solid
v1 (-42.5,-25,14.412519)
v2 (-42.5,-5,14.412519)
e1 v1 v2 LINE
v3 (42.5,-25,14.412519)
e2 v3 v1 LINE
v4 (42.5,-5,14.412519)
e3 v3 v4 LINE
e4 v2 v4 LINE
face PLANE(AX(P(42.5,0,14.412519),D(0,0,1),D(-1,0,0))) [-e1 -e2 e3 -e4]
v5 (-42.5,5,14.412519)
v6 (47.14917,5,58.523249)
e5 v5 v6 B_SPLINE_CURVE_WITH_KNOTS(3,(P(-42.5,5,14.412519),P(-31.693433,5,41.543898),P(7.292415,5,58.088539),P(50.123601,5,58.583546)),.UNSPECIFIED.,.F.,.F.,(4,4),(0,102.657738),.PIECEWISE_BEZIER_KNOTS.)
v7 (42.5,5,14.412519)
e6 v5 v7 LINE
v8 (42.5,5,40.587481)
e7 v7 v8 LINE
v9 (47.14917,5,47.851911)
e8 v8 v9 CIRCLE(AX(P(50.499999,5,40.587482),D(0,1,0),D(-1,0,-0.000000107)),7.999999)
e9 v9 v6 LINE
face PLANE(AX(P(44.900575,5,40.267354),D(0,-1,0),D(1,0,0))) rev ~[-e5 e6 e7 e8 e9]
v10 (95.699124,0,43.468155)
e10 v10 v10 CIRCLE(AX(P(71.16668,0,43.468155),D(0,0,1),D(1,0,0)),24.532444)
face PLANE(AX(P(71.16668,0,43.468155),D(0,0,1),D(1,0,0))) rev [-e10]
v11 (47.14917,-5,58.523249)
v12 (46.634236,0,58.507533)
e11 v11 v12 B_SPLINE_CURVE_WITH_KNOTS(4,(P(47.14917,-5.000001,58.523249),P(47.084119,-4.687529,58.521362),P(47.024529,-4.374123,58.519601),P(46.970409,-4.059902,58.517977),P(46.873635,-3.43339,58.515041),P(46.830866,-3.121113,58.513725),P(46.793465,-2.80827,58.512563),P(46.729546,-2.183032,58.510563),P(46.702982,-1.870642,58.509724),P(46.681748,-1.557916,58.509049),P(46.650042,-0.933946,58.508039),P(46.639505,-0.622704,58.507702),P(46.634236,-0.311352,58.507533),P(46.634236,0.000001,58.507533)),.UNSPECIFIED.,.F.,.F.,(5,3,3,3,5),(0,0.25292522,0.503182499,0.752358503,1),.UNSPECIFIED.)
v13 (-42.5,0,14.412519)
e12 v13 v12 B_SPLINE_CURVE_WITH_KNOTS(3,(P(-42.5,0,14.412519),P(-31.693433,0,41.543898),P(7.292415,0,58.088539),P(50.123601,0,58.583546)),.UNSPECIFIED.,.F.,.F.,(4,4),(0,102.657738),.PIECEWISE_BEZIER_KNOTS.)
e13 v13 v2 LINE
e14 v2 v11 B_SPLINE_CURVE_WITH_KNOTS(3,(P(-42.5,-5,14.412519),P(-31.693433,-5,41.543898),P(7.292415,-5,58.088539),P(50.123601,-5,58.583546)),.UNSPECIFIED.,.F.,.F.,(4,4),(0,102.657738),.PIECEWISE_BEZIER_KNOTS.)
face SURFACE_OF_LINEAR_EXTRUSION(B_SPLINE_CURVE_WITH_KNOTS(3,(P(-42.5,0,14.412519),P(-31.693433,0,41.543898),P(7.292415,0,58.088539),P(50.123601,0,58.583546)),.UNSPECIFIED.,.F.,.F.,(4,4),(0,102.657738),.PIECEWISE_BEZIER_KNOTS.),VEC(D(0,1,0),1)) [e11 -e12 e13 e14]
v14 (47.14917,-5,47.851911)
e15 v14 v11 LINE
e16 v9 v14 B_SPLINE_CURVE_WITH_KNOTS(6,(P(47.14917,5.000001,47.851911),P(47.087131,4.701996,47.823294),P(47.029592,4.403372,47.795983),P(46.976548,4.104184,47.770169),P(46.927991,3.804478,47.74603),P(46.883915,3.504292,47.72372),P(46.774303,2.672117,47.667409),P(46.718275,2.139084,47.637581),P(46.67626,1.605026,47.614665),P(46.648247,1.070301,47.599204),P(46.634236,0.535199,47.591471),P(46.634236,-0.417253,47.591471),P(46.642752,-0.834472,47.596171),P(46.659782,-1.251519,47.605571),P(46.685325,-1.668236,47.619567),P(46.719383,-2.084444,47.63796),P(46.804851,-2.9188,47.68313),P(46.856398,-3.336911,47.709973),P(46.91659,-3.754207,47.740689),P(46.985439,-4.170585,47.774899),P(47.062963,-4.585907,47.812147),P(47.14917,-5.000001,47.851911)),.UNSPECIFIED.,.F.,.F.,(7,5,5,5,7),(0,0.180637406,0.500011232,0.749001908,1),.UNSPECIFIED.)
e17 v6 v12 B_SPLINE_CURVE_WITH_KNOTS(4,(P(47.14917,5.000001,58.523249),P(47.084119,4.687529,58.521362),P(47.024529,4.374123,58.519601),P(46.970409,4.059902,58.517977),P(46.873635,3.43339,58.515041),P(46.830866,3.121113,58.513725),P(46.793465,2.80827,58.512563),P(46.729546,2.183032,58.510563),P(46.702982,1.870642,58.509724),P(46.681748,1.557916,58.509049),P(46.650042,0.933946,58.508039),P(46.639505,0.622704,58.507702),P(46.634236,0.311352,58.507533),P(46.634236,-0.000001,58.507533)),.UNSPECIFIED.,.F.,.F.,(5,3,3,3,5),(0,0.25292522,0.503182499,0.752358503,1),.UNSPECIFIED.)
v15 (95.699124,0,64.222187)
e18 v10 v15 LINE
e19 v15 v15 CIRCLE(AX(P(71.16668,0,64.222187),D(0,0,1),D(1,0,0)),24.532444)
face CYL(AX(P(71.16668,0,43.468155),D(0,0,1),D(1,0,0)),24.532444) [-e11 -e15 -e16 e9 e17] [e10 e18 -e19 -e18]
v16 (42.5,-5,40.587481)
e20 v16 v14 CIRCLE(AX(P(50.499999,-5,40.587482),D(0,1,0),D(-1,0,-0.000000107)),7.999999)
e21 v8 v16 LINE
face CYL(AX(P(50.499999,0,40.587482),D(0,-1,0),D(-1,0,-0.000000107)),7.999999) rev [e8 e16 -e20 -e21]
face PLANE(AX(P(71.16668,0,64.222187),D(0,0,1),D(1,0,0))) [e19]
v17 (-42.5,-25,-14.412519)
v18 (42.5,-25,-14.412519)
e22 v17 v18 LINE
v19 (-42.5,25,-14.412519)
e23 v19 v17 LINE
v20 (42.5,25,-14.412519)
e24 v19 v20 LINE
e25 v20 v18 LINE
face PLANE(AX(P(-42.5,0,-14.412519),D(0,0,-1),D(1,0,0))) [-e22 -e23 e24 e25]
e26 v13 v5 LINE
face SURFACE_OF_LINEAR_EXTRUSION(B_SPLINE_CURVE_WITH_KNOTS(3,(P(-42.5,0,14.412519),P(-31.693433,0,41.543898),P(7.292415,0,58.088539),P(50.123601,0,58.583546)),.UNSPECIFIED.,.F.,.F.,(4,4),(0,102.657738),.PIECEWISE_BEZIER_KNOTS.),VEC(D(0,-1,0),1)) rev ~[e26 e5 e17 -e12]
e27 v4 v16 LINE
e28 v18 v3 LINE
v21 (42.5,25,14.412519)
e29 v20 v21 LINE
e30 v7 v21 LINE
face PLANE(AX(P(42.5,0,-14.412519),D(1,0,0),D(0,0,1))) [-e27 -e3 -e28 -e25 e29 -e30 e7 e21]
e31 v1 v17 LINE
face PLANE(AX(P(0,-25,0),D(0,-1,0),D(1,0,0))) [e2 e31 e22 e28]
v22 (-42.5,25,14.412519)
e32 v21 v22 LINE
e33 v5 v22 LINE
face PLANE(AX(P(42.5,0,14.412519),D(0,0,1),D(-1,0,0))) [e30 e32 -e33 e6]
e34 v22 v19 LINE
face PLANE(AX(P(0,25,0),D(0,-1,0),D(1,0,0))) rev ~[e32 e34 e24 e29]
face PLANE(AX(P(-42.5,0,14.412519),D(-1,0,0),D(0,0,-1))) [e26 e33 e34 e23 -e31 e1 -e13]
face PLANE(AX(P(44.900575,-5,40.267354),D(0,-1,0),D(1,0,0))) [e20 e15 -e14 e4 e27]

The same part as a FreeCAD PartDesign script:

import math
import FreeCAD as App
import Part
import Sketcher
from FreeCAD import Vector
Q = App.Units.Quantity

doc = App.newDocument("Part")
body = doc.addObject("PartDesign::Body", "Body")

sketch1 = doc.addObject("Sketcher::SketchObject", "Sketch")
body.addObject(sketch1)
sketch1.AttachmentSupport = (doc.XZ_Plane, [""])
sketch1.MapMode = "FlatFace"
sketch1.addGeometry([
    Part.LineSegment(Vector(-42, 14, 0), Vector(-42, -14, 0)),
    Part.LineSegment(Vector(-42, -14, 0), Vector(42, -14, 0)),
    Part.LineSegment(Vector(42, -14, 0), Vector(42, 14, 0)),
    Part.LineSegment(Vector(42, 14, 0), Vector(-42, 14, 0)),
], False)
sketch1.addConstraint([
    Sketcher.Constraint("Coincident", 0, 2, 1, 1),
    Sketcher.Constraint("Coincident", 1, 2, 2, 1),
    Sketcher.Constraint("Coincident", 2, 2, 3, 1),
    Sketcher.Constraint("Coincident", 3, 2, 0, 1),
    Sketcher.Constraint("Vertical", 0),
    Sketcher.Constraint("Horizontal", 1),
    Sketcher.Constraint("Vertical", 2),
    Sketcher.Constraint("Horizontal", 3),
    Sketcher.Constraint("Symmetric", 0, 2, 2, 2, -1, 1),
    Sketcher.Constraint("DistanceX", 1, 1, 1, 2, Q("85 mm")),
    Sketcher.Constraint("DistanceY", 0, 2, 0, 1, Q("28.825038 mm")),
])
pad1 = doc.addObject("PartDesign::Pad", "Pad")
body.addObject(pad1)
pad1.Profile = sketch1
pad1.Length = 50
pad1.Midplane = True

sketch2 = doc.addObject("Sketcher::SketchObject", "Sketch001")
body.addObject(sketch2)
sketch2.AttachmentSupport = (doc.XZ_Plane, [""])
sketch2.MapMode = "FlatFace"
sketch2.addGeometry([
    Part.LineSegment(Vector(42.5, 14.412519, 0), Vector(42.5, 40.587481, 0)),
    Part.ArcOfCircle(Part.Circle(Vector(50.499999, 40.587482, 0), Vector(0, 0, 1), 7.999999), math.radians(89.999994), math.radians(180.000006)),
    Part.LineSegment(Vector(50.5, 48.587481, 0), Vector(65.721087, 48.587481, 0)),
    Part.LineSegment(Vector(65.721087, 48.587481, 0), Vector(65.721087, 58.587481, 0)),
    Part.LineSegment(Vector(65.721087, 58.587481, 0), Vector(50.5, 58.587481, 0)),
    Part.BSplineCurve([Vector(50.123601, 58.583546, 0), Vector(50.249035, 58.584995, 0), Vector(50.374501, 58.586307, 0), Vector(50.5, 58.587481, 0)], [4, 4], [102.657738, 102.958377], False, 3, [1, 1, 1, 1], False),
    Part.BSplineCurve([Vector(-42.5, 14.412519, 0), Vector(-31.693433, 41.543898, 0), Vector(7.292415, 58.088539, 0), Vector(50.123601, 58.583546, 0)], [4, 4], [0, 102.657738], False, 3, [1, 1, 1, 1], False),
    Part.LineSegment(Vector(-42.5, 14.412519, 0), Vector(42.5, 14.412519, 0)),
], False)
sketch2.addConstraint([
    Sketcher.Constraint("Block", 5),
    Sketcher.Constraint("Block", 6),
    Sketcher.Constraint("Tangent", 0, 2, 1, 2),
    Sketcher.Constraint("Tangent", 1, 1, 2, 1),
    Sketcher.Constraint("Coincident", 2, 2, 3, 1),
    Sketcher.Constraint("Coincident", 3, 2, 4, 1),
    Sketcher.Constraint("Coincident", 4, 2, 5, 2),
    Sketcher.Constraint("Coincident", 6, 1, 7, 1),
    Sketcher.Constraint("Coincident", 7, 2, 0, 1),
    Sketcher.Constraint("Vertical", 0),
    Sketcher.Constraint("Horizontal", 2),
    Sketcher.Constraint("Vertical", 3),
    Sketcher.Constraint("Horizontal", 4),
    Sketcher.Constraint("Horizontal", 7),
    Sketcher.Constraint("Vertical", 1, 1, 4, 2),
    Sketcher.Constraint("Radius", 1, Q("7.999999 mm")),
    Sketcher.Constraint("DistanceY", 3, 1, 3, 2, Q("10 mm")),
    Sketcher.Constraint("DistanceX", 2, 1, 2, 2, Q("15.221087 mm")),
])
pad2 = doc.addObject("PartDesign::Pad", "Pad001")
body.addObject(pad2)
pad2.Profile = sketch2
pad2.Length = 10
pad2.Midplane = True

sketch3 = doc.addObject("Sketcher::SketchObject", "Sketch002")
body.addObject(sketch3)
sketch3.AttachmentSupport = (doc.XZ_Plane, [""])
sketch3.MapMode = "FlatFace"
sketch3.addGeometry([
    Part.LineSegment(Vector(71, 64, 0), Vector(71, 43, 0)),
    Part.LineSegment(Vector(71, 43, 0), Vector(96, 43, 0)),
    Part.LineSegment(Vector(96, 43, 0), Vector(96, 64, 0)),
    Part.LineSegment(Vector(96, 64, 0), Vector(71, 64, 0)),
], False)
sketch3.addGeometry(Part.LineSegment(Vector(71, 43, 0), Vector(71, 64, 0)), True)
sketch3.addConstraint([
    Sketcher.Constraint("Coincident", 0, 2, 1, 1),
    Sketcher.Constraint("Coincident", 1, 2, 2, 1),
    Sketcher.Constraint("Coincident", 2, 2, 3, 1),
    Sketcher.Constraint("Coincident", 3, 2, 0, 1),
    Sketcher.Constraint("Vertical", 0),
    Sketcher.Constraint("Horizontal", 1),
    Sketcher.Constraint("Vertical", 2),
    Sketcher.Constraint("Horizontal", 3),
    Sketcher.Constraint("Vertical", 4),
    Sketcher.Constraint("Coincident", 4, 1, 0, 2),
    Sketcher.Constraint("Horizontal", 2, 2, 4, 2),
    Sketcher.Constraint("DistanceX", 1, 1, 1, 2, Q("24.532444 mm")),
    Sketcher.Constraint("DistanceY", 0, 2, 0, 1, Q("20.754032 mm")),
    Sketcher.Constraint("DistanceX", -1, 1, 0, 2, Q("71.16668 mm")),
    Sketcher.Constraint("DistanceY", -1, 1, 0, 2, Q("43.468155 mm")),
])
revolution = doc.addObject("PartDesign::Revolution", "Revolution")
body.addObject(revolution)
revolution.Profile = sketch3
revolution.ReferenceAxis = (sketch3, ["Axis0"])
revolution.Angle = 360

doc.recompute()
